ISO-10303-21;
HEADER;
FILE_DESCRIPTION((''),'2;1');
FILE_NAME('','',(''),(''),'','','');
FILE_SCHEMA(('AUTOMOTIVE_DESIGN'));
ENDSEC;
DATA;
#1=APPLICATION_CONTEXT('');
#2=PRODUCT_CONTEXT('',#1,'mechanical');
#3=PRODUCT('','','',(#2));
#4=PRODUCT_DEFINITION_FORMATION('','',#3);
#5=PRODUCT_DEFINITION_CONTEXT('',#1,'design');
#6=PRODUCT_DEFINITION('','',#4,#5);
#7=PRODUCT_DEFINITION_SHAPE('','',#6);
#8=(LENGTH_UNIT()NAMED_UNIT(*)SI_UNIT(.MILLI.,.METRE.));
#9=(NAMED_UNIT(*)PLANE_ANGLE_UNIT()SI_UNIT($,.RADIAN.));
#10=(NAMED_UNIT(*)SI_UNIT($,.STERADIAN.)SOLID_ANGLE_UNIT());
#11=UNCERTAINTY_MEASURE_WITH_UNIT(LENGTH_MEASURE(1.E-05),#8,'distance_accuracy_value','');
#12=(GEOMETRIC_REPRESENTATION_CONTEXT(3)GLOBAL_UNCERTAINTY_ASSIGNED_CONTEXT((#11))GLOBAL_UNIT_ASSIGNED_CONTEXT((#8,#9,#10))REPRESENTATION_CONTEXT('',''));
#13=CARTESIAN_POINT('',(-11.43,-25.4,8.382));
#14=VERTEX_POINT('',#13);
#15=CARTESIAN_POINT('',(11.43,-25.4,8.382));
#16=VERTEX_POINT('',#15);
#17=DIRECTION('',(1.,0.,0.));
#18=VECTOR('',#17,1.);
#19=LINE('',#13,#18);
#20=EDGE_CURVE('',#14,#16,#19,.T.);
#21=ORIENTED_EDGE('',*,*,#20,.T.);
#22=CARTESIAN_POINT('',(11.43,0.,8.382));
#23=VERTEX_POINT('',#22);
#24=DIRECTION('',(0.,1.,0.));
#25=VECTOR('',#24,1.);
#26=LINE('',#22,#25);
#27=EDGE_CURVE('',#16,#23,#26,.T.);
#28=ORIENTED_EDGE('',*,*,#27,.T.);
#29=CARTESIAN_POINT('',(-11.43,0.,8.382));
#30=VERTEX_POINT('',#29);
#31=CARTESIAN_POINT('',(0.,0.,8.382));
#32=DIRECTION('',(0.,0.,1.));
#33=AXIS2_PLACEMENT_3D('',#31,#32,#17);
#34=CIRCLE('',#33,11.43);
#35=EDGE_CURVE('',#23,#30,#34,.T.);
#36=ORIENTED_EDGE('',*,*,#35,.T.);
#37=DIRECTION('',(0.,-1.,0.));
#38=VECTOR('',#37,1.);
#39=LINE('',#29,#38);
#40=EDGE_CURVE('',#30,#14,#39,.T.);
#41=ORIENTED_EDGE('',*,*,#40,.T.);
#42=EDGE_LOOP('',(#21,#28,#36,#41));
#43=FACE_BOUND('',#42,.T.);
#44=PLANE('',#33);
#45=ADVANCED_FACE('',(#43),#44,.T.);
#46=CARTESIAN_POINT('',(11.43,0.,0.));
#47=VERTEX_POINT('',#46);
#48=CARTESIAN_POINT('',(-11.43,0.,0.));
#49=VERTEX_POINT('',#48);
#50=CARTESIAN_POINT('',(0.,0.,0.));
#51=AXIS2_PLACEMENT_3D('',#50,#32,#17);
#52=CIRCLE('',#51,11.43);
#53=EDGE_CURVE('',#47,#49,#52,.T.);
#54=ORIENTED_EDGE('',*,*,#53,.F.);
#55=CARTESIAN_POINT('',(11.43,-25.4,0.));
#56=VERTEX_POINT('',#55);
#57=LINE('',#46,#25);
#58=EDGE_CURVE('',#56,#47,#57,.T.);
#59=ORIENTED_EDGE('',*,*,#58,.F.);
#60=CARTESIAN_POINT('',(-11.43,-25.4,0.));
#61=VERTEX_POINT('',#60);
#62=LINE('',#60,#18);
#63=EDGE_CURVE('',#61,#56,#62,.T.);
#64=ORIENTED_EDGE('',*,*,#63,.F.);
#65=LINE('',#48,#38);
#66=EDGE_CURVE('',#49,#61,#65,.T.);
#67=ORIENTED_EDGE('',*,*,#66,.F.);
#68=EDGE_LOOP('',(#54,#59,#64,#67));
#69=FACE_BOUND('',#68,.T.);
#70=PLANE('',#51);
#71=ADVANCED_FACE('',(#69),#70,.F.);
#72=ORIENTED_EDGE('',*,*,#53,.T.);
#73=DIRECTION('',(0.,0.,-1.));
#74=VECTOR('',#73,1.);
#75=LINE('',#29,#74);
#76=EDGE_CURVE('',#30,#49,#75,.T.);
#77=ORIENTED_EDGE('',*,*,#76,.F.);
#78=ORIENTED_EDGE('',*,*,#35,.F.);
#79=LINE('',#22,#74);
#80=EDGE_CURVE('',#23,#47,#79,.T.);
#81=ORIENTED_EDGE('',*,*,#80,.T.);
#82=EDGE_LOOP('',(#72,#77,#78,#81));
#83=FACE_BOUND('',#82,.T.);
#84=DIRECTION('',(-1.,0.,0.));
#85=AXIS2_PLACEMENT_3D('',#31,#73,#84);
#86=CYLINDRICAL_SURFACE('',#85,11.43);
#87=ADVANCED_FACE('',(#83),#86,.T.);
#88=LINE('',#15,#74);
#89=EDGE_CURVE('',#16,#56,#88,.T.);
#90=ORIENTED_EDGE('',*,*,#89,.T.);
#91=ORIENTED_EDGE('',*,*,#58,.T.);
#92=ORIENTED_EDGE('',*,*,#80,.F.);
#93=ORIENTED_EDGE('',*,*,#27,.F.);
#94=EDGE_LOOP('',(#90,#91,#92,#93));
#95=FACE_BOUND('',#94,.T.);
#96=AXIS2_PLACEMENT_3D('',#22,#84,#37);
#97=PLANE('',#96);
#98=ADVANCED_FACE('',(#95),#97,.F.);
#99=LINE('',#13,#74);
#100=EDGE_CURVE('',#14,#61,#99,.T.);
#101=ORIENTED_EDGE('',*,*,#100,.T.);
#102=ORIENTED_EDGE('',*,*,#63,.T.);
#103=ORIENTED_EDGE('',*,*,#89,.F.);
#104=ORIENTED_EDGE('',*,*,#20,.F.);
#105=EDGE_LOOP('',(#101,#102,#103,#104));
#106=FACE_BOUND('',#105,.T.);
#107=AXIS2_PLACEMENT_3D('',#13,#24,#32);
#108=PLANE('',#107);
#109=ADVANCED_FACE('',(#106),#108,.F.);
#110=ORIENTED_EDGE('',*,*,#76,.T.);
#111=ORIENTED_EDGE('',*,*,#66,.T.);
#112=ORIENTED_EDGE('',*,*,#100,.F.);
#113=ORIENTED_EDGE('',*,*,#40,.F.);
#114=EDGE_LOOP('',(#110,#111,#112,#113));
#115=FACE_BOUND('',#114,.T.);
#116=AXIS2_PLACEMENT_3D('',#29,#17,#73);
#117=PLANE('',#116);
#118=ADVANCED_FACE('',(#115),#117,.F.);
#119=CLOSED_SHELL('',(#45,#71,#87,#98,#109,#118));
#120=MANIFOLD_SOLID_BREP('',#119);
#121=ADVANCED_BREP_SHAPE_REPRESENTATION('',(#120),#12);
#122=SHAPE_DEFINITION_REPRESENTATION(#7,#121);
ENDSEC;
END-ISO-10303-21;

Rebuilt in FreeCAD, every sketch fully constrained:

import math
import FreeCAD as App
import Part
import Sketcher

V = App.Vector
Q = App.Units.Quantity

doc = App.newDocument("Part")
body = doc.addObject("PartDesign::Body", "Body")

sketch1 = doc.addObject("Sketcher::SketchObject", "Sketch")
body.addObject(sketch1)
sketch1.AttachmentSupport = (doc.XY_Plane, [""])
sketch1.MapMode = "FlatFace"
sketch1.addGeometry([
    Part.LineSegment(V(-11, -25, 0), V(11, -25, 0)),
    Part.LineSegment(V(11, -25, 0), V(11, 0, 0)),
    Part.ArcOfCircle(Part.Circle(V(0, 0, 0), V(0, 0, 1), 11), math.radians(0), math.radians(180)),
    Part.LineSegment(V(-11, 0, 0), V(-11, -25, 0)),
], False)
sketch1.addConstraint([
    Sketcher.Constraint("Coincident", 0, 2, 1, 1),
    Sketcher.Constraint("Tangent", 1, 2, 2, 1),
    Sketcher.Constraint("Tangent", 2, 2, 3, 1),
    Sketcher.Constraint("Coincident", 3, 2, 0, 1),
    Sketcher.Constraint("Horizontal", 0),
    Sketcher.Constraint("Vertical", 1),
    Sketcher.Constraint("Vertical", 3),
    Sketcher.Constraint("Coincident", 2, 3, -1, 1),
    Sketcher.Constraint("DistanceY", 1, 1, 1, 2, Q("1 in")),
    Sketcher.Constraint("Radius", 2, Q("0.45 in")),
])
pad1 = doc.addObject("PartDesign::Pad", "Pad")
body.addObject(pad1)
pad1.Profile = sketch1
pad1.Length = Q("0.33 in")

doc.recompute()
